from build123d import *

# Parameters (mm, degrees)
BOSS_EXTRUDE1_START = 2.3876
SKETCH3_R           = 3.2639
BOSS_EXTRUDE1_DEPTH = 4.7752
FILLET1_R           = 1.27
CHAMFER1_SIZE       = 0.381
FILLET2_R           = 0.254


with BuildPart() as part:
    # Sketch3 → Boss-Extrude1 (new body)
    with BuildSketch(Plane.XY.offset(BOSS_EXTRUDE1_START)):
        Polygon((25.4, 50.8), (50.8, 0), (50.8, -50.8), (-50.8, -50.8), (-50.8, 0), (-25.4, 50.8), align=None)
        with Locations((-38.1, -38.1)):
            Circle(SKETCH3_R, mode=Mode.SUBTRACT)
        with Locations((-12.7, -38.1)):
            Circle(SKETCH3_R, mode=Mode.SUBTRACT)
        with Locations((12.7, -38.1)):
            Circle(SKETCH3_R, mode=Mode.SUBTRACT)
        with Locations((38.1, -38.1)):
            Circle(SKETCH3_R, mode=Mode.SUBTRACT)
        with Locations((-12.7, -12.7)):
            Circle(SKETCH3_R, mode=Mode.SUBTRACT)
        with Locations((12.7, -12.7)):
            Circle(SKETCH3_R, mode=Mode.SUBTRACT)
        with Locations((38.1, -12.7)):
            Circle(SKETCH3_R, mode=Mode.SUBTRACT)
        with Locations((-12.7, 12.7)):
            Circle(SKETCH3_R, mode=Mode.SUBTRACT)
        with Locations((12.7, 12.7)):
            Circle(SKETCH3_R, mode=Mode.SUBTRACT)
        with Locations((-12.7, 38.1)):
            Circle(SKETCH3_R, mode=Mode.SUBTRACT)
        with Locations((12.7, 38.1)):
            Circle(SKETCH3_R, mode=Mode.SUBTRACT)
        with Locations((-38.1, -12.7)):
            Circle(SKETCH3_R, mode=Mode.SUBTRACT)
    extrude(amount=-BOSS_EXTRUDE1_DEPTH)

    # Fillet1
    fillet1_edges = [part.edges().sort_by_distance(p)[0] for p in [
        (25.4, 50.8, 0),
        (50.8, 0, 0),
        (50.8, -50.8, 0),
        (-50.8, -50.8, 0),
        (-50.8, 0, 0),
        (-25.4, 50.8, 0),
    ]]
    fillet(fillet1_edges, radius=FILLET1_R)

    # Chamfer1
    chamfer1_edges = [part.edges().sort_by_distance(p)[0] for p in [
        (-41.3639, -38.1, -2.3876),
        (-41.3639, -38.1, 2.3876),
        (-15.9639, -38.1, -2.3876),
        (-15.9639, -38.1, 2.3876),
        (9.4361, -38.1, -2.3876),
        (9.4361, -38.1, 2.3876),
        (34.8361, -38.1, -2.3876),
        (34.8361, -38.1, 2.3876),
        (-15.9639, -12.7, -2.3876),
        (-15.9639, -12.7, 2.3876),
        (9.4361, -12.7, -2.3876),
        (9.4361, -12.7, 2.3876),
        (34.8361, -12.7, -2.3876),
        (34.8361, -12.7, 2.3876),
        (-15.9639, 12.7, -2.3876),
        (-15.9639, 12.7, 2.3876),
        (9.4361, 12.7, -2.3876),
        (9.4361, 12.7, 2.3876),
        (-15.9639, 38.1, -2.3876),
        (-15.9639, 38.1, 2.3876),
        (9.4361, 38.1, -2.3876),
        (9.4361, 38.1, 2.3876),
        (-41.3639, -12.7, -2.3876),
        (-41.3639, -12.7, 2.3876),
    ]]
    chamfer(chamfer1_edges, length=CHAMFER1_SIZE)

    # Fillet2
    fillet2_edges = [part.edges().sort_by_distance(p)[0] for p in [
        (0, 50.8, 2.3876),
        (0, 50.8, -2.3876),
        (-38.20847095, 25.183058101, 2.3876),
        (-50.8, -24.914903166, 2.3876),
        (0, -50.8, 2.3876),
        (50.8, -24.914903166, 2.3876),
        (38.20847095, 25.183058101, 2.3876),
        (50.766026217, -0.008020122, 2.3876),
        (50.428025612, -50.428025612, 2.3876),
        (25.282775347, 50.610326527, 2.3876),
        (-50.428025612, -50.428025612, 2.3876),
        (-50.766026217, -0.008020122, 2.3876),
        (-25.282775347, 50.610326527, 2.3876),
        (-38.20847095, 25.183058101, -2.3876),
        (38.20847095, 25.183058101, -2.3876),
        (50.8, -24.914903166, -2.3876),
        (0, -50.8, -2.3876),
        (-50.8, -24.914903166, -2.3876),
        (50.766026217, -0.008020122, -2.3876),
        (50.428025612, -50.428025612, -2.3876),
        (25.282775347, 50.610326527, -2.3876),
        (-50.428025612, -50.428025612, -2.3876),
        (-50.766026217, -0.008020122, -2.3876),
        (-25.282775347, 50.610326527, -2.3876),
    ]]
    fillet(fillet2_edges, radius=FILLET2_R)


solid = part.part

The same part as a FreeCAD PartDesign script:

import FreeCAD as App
import Part
import Sketcher
from FreeCAD import Vector
Q = App.Units.Quantity


def edges_at(feature, points):
    """Names of the edges that pass closest to the given points."""
    edges = feature.Shape.Edges
    near = lambda p: min(range(len(edges)), key=lambda i: edges[i].distToShape(Part.Vertex(*p))[0])
    return sorted({f"Edge{near(p) + 1}" for p in points})


def add_polygon(sketch, points):
    """Adds a closed chain of lines whose ends are joined by coincident constraints."""
    first, n = sketch.GeometryCount, len(points)
    for a, b in zip(points, points[1:] + points[:1]):
        sketch.addGeometry(Part.LineSegment(App.Vector(*a, 0), App.Vector(*b, 0)), False)
    for i in range(n):
        sketch.addConstraint(Sketcher.Constraint("Coincident", first + i, 2, first + (i + 1) % n, 1))

doc = App.newDocument("Part")
params = doc.addObject("Spreadsheet::Sheet", "Params")
for row, (alias, value) in enumerate([
    ("sketch1_width", "2 in"),
    ("sketch1_width2", "4 in"),
    ("sketch1_diameter", "0.257 in"),
    ("pad1_length", "0.188 in"),
    ("fillet_radius", "0.05 in"),
    ("chamfer_size", "0.015 in"),
    ("fillet2_radius", "0.01 in"),
], start=1):
    params.set(f"A{row}", alias)
    params.set(f"B{row}", "=" + value)
    params.setAlias(f"B{row}", alias)

body = doc.addObject("PartDesign::Body", "Body")

# Sketch on XY plane
sketch1 = body.newObject("Sketcher::SketchObject", "Sketch")
sketch1.AttachmentSupport = (doc.getObject("XY_Plane"), [""])
sketch1.MapMode = "FlatFace"
sketch1.AttachmentOffset = App.Placement(Vector(0, 0, 0.094 * 25.4), App.Rotation())
add_polygon(sketch1, [(50.8, 0), (25.4, 50.8), (-25.4, 50.8), (-50.8, 0), (-50.8, -50.8), (50.8, -50.8)])  # lines 0-5
sketch1.addGeometry(Part.Circle(Vector(38.1, -38.1, 0), Vector(0, 0, 1), 3.3), False)  # 6
sketch1.addGeometry(Part.Circle(Vector(12.7, -38.1, 0), Vector(0, 0, 1), 3.3), False)  # 7
sketch1.addGeometry(Part.Circle(Vector(38.1, -12.7, 0), Vector(0, 0, 1), 3.3), False)  # 8
sketch1.addGeometry(Part.Circle(Vector(12.7, -12.7, 0), Vector(0, 0, 1), 3.3), False)  # 9
sketch1.addGeometry(Part.Circle(Vector(-12.7, -38.1, 0), Vector(0, 0, 1), 3.3), False)  # 10
sketch1.addGeometry(Part.Circle(Vector(-38.1, -38.1, 0), Vector(0, 0, 1), 3.3), False)  # 11
sketch1.addGeometry(Part.Circle(Vector(-12.7, -12.7, 0), Vector(0, 0, 1), 3.3), False)  # 12
sketch1.addGeometry(Part.Circle(Vector(-38.1, -12.7, 0), Vector(0, 0, 1), 3.3), False)  # 13
sketch1.addGeometry(Part.Circle(Vector(12.7, 12.7, 0), Vector(0, 0, 1), 3.3), False)  # 14
sketch1.addGeometry(Part.Circle(Vector(12.7, 38.1, 0), Vector(0, 0, 1), 3.3), False)  # 15
sketch1.addGeometry(Part.Circle(Vector(-12.7, 12.7, 0), Vector(0, 0, 1), 3.3), False)  # 16
sketch1.addGeometry(Part.Circle(Vector(-12.7, 38.1, 0), Vector(0, 0, 1), 3.3), False)  # 17
sketch1.addConstraint([
    Sketcher.Constraint("Horizontal", 1),
    Sketcher.Constraint("Vertical", 3),
    Sketcher.Constraint("Horizontal", 4),
    Sketcher.Constraint("Vertical", 5),
    Sketcher.Constraint("Equal", 6, 7),
    Sketcher.Constraint("Equal", 7, 8),
    Sketcher.Constraint("Equal", 8, 9),
    Sketcher.Constraint("Equal", 9, 10),
    Sketcher.Constraint("Equal", 10, 11),
    Sketcher.Constraint("Equal", 11, 12),
    Sketcher.Constraint("Equal", 12, 13),
    Sketcher.Constraint("Equal", 13, 14),
    Sketcher.Constraint("Equal", 14, 15),
    Sketcher.Constraint("Equal", 15, 16),
    Sketcher.Constraint("Equal", 16, 17),
    Sketcher.Constraint("Symmetric", 12, 3, 14, 3, -1, 1),
    Sketcher.Constraint("Symmetric", 10, 3, 15, 3, -1, 1),
    Sketcher.Constraint("Symmetric", 9, 3, 16, 3, -1, 1),
    Sketcher.Constraint("Symmetric", 7, 3, 17, 3, -1, 1),
    Sketcher.Constraint("Symmetric", 2, 2, 5, 2, -1, 1),
    Sketcher.Constraint("Symmetric", 7, 3, 10, 3, -2),
    Sketcher.Constraint("Symmetric", 6, 3, 11, 3, -2),
    Sketcher.Constraint("Symmetric", 9, 3, 12, 3, -2),
    Sketcher.Constraint("Symmetric", 8, 3, 13, 3, -2),
    Sketcher.Constraint("PointOnObject", 2, 2, -1),
    Sketcher.Constraint("Horizontal", 6, 3, 7, 3),
    Sketcher.Constraint("Horizontal", 8, 3, 9, 3),
    Sketcher.Constraint("Vertical", 6, 3, 8, 3),
    Sketcher.Constraint("Vertical", 7, 3, 9, 3),
    Sketcher.Constraint("Equal", 1, 3),
    Sketcher.Constraint("Equal", 0, 2),
    Sketcher.Constraint("DistanceX", 1, 2, 1, 1, Q("2 in")),
    Sketcher.Constraint("DistanceX", 4, 1, 4, 2, Q("4 in")),
    Sketcher.Constraint("Diameter", 6, Q("0.257 in")),
    Sketcher.Constraint("DistanceY", -1, 1, 0, 2, Q("2 in")),
    Sketcher.Constraint("DistanceX", 7, 3, 6, 3, Q("1 in")),
    Sketcher.Constraint("DistanceY", 6, 3, 8, 3, Q("1 in")),
    Sketcher.Constraint("DistanceX", 10, 3, 7, 3, Q("1 in")),
    Sketcher.Constraint("DistanceY", 9, 3, 14, 3, Q("1 in")),
])
sketch1.setExpression("Constraints[37]", "Params.sketch1_width")
sketch1.setExpression("Constraints[38]", "Params.sketch1_width2")
sketch1.setExpression("Constraints[39]", "Params.sketch1_diameter")
pad1 = body.newObject("PartDesign::Pad", "Pad")
pad1.Profile = sketch1
pad1.setExpression("Length", "Params.pad1_length")
pad1.Reversed = True
doc.recompute()

fillet = body.newObject("PartDesign::Fillet", "Fillet")
fillet.Base = (pad1, edges_at(pad1, [
    (25.4, 50.8, 0),
    (50.8, 0, 0),
    (50.8, -50.8, 0),
    (-50.8, -50.8, 0),
    (-50.8, 0, 0),
    (-25.4, 50.8, 0),
]))
fillet.setExpression("Radius", "Params.fillet_radius")
doc.recompute()

chamfer = body.newObject("PartDesign::Chamfer", "Chamfer")
chamfer.Base = (fillet, edges_at(fillet, [
    (-41.364, -38.1, -2.388),
    (-41.364, -38.1, 2.388),
    (-15.964, -38.1, -2.388),
    (-15.964, -38.1, 2.388),
    (9.436, -38.1, -2.388),
    (9.436, -38.1, 2.388),
    (34.836, -38.1, -2.388),
    (34.836, -38.1, 2.388),
    (-15.964, -12.7, -2.388),
    (-15.964, -12.7, 2.388),
    (9.436, -12.7, -2.388),
    (9.436, -12.7, 2.388),
    (34.836, -12.7, -2.388),
    (34.836, -12.7, 2.388),
    (-15.964, 12.7, -2.388),
    (-15.964, 12.7, 2.388),
    (9.436, 12.7, -2.388),
    (9.436, 12.7, 2.388),
    (-15.964, 38.1, -2.388),
    (-15.964, 38.1, 2.388),
    (9.436, 38.1, -2.388),
    (9.436, 38.1, 2.388),
    (-41.364, -12.7, -2.388),
    (-41.364, -12.7, 2.388),
]))
chamfer.setExpression("Size", "Params.chamfer_size")
doc.recompute()

fillet2 = body.newObject("PartDesign::Fillet", "Fillet001")
fillet2.Base = (chamfer, edges_at(chamfer, [
    (0, 50.8, 2.388),
    (0, 50.8, -2.388),
    (-38.208, 25.183, 2.388),
    (-50.8, -24.915, 2.388),
    (0, -50.8, 2.388),
    (50.8, -24.915, 2.388),
    (38.208, 25.183, 2.388),
    (50.766, -0.008, 2.388),
    (50.428, -50.428, 2.388),
    (25.283, 50.61, 2.388),
    (-50.428, -50.428, 2.388),
    (-50.766, -0.008, 2.388),
    (-25.283, 50.61, 2.388),
    (-38.208, 25.183, -2.388),
    (38.208, 25.183, -2.388),
    (50.8, -24.915, -2.388),
    (0, -50.8, -2.388),
    (-50.8, -24.915, -2.388),
    (50.766, -0.008, -2.388),
    (50.428, -50.428, -2.388),
    (25.283, 50.61, -2.388),
    (-50.428, -50.428, -2.388),
    (-50.766, -0.008, -2.388),
    (-25.283, 50.61, -2.388),
]))
fillet2.setExpression("Radius", "Params.fillet2_radius")

doc.recompute()
